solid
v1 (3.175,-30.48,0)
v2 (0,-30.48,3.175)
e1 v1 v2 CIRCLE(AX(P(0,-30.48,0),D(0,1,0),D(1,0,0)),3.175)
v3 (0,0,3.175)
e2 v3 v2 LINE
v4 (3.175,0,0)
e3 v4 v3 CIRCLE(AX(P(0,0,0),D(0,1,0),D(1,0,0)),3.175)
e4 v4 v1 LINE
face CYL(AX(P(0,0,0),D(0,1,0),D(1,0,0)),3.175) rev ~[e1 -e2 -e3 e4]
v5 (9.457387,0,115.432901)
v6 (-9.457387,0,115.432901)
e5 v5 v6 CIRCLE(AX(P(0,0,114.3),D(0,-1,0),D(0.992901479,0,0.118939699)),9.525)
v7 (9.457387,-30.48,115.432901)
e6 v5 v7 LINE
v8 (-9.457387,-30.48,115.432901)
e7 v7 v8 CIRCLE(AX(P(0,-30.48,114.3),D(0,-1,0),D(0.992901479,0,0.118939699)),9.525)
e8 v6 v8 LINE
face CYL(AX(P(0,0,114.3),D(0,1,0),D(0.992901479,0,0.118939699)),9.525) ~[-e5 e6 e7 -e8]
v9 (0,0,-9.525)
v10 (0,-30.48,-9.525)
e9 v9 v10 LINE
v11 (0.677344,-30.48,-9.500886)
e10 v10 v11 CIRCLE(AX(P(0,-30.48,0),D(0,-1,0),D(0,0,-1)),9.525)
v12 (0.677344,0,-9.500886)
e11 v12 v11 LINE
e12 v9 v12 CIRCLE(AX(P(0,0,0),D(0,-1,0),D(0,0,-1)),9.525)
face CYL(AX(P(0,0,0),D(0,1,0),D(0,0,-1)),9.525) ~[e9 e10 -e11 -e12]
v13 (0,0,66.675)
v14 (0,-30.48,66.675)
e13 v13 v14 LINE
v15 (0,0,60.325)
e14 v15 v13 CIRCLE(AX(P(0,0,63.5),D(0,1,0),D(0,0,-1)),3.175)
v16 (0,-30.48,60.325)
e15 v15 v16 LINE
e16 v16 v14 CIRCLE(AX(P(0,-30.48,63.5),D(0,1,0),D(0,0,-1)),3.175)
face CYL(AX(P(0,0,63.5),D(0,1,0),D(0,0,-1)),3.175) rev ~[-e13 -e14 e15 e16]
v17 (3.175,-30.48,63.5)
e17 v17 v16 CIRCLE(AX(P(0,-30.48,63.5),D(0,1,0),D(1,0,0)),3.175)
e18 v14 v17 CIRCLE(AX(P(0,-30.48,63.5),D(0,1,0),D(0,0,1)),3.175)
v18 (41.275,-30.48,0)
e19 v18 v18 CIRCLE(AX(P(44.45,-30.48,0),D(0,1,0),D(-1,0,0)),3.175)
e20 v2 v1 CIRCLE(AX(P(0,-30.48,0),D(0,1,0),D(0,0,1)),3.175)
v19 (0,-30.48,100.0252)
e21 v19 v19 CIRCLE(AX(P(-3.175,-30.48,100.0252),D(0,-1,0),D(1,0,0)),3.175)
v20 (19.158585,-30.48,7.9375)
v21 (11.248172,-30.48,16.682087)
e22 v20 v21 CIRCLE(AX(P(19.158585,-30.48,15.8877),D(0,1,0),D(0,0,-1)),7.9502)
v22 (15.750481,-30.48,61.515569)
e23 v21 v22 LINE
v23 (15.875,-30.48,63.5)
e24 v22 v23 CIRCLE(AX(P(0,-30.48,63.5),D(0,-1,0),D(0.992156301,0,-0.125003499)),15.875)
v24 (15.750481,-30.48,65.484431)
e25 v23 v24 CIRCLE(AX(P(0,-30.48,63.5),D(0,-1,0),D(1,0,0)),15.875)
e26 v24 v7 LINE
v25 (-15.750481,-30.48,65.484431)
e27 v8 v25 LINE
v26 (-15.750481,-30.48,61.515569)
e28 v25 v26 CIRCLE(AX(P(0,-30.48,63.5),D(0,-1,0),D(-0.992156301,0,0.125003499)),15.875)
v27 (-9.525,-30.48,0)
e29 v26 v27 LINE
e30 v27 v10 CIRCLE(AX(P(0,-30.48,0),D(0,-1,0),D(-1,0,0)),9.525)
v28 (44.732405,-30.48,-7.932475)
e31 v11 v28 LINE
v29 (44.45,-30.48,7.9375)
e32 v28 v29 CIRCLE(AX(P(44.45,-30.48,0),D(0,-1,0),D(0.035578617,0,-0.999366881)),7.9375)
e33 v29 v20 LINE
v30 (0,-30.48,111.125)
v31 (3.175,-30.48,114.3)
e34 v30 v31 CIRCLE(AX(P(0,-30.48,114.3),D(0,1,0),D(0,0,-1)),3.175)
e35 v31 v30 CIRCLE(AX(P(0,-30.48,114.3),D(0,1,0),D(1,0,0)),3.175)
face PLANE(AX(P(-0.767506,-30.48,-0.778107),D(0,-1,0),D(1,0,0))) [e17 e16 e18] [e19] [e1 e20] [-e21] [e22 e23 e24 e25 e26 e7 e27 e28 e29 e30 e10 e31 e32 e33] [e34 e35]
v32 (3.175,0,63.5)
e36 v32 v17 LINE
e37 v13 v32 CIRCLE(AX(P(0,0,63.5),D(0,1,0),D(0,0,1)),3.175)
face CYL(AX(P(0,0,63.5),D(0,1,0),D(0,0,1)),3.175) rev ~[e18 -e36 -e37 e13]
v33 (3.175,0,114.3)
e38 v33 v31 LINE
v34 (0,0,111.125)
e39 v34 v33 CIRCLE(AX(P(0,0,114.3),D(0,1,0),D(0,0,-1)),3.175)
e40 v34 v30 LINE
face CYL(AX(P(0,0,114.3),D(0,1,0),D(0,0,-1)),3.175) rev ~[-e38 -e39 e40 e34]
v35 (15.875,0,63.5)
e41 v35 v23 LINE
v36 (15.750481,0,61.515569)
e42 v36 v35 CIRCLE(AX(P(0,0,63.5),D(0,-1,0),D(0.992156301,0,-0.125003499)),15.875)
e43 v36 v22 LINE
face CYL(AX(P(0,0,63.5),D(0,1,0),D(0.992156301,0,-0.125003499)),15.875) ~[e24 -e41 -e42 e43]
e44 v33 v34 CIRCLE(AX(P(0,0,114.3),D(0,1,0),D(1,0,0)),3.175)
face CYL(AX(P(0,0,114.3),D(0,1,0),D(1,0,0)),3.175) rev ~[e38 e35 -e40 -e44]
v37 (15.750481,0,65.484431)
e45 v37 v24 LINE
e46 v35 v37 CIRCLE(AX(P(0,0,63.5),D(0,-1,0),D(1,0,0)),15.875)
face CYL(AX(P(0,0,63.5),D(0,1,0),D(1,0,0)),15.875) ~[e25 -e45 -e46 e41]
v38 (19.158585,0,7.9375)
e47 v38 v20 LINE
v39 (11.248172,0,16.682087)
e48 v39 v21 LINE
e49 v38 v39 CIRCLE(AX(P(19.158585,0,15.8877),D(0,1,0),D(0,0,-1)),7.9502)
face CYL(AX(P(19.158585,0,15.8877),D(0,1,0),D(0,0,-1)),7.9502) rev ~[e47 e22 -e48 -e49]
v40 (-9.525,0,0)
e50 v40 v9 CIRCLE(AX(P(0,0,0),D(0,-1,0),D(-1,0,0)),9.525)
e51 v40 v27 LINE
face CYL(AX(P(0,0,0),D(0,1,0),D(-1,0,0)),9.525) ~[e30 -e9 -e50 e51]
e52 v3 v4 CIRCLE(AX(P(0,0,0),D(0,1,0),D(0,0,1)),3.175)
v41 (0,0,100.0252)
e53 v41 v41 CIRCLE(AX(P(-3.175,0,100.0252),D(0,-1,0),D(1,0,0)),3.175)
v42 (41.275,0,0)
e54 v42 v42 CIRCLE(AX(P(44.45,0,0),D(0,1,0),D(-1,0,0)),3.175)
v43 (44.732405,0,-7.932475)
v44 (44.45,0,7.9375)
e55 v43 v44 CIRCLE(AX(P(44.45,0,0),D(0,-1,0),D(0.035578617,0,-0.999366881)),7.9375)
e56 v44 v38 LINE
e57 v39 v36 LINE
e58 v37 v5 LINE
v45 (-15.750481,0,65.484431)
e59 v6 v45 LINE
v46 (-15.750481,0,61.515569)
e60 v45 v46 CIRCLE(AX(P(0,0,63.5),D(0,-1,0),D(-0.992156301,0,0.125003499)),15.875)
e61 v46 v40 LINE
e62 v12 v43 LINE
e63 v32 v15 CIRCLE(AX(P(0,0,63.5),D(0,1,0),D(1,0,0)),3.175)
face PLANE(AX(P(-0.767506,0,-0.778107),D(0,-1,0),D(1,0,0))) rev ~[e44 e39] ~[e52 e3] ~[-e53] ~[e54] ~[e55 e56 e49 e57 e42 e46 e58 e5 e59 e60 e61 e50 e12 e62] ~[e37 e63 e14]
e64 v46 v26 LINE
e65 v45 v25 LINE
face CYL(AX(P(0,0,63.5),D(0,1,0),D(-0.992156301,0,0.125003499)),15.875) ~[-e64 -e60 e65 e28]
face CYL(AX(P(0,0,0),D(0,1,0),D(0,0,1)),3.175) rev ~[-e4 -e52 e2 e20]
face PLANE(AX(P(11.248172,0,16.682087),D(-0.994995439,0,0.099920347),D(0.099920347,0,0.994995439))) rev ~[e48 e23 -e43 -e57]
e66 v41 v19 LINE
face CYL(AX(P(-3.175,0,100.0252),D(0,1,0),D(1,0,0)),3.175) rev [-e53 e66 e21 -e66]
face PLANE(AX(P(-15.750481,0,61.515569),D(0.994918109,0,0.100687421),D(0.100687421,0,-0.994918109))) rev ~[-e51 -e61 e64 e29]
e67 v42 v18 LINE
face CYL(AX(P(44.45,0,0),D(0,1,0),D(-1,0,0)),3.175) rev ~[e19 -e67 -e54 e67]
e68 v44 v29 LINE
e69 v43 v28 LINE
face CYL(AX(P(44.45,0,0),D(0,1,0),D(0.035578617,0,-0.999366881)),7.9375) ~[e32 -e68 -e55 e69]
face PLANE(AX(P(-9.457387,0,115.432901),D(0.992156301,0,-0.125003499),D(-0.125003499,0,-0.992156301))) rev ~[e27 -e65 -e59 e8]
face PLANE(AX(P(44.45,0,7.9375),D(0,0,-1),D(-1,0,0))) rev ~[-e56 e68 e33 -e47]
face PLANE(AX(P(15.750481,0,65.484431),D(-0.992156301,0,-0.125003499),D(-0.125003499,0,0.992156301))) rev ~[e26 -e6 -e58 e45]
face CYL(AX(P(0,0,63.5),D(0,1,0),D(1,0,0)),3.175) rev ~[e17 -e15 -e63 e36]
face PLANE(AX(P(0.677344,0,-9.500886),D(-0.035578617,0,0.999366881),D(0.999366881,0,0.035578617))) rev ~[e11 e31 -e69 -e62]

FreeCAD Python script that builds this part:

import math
import FreeCAD as App
import Part
import Sketcher
Q = App.Units.Quantity

doc = App.newDocument("Part")
body = doc.addObject("PartDesign::Body", "Body")

# Sketch on XZ plane
sketch1 = doc.addObject("Sketcher::SketchObject", "Sketch")
body.addObject(sketch1)
sketch1.AttachmentSupport = (doc.XZ_Plane, [""])
sketch1.MapMode = "FlatFace"
sketch1.addGeometry(Part.ArcOfCircle(Part.Circle(App.Vector(0, 63.5, 0), App.Vector(0, 0, 1), 15.875), math.radians(172.819042), math.radians(187.180958)), False)
sketch1.addGeometry(Part.LineSegment(App.Vector(-15.750481, 61.515569, 0), App.Vector(-9.525, 0, 0)), False)
sketch1.addGeometry(Part.ArcOfCircle(Part.Circle(App.Vector(0, 0, 0), App.Vector(0, 0, 1), 9.525), math.radians(180), math.radians(270)), False)
sketch1.addGeometry(Part.ArcOfCircle(Part.Circle(App.Vector(0, 0, 0), App.Vector(0, 0, 1), 9.525), math.radians(-90), math.radians(-85.92213)), False)
sketch1.addGeometry(Part.LineSegment(App.Vector(0.677344, -9.500886, 0), App.Vector(44.732405, -7.932475, 0)), False)
sketch1.addGeometry(Part.ArcOfCircle(Part.Circle(App.Vector(44.45, 0, 0), App.Vector(0, 0, 1), 7.9375), math.radians(-87.961065), math.radians(90)), False)
sketch1.addGeometry(Part.LineSegment(App.Vector(44.45, 7.9375, 0), App.Vector(19.158585, 7.9375, 0)), False)
sketch1.addGeometry(Part.ArcOfCircle(Part.Circle(App.Vector(19.158585, 15.8877, 0), App.Vector(0, 0, 1), 7.9502), math.radians(174.265416), math.radians(270)), False)
sketch1.addGeometry(Part.LineSegment(App.Vector(11.248172, 16.682087, 0), App.Vector(15.750481, 61.515569, 0)), False)
sketch1.addGeometry(Part.ArcOfCircle(Part.Circle(App.Vector(0, 63.5, 0), App.Vector(0, 0, 1), 15.875), math.radians(-7.180958), math.radians(0)), False)
sketch1.addGeometry(Part.ArcOfCircle(Part.Circle(App.Vector(0, 63.5, 0), App.Vector(0, 0, 1), 15.875), math.radians(0), math.radians(7.180958)), False)
sketch1.addGeometry(Part.LineSegment(App.Vector(15.750481, 65.484431, 0), App.Vector(9.457387, 115.432901, 0)), False)
sketch1.addGeometry(Part.ArcOfCircle(Part.Circle(App.Vector(0, 114.3, 0), App.Vector(0, 0, 1), 9.525), math.radians(6.830914), math.radians(173.169086)), False)
sketch1.addGeometry(Part.LineSegment(App.Vector(-9.457387, 115.432901, 0), App.Vector(-15.750481, 65.484431, 0)), False)
sketch1.addGeometry(Part.ArcOfCircle(Part.Circle(App.Vector(0, 0, 0), App.Vector(0, 0, 1), 3.175), math.radians(90), math.radians(360)), False)
sketch1.addGeometry(Part.ArcOfCircle(Part.Circle(App.Vector(0, 0, 0), App.Vector(0, 0, 1), 3.175), math.radians(0), math.radians(90)), False)
sketch1.addGeometry(Part.Circle(App.Vector(44.45, 0, 0), App.Vector(0, 0, 1), 3.175), False)
sketch1.addGeometry(Part.ArcOfCircle(Part.Circle(App.Vector(0, 63.5, 0), App.Vector(0, 0, 1), 3.175), math.radians(90), math.radians(270)), False)
sketch1.addGeometry(Part.ArcOfCircle(Part.Circle(App.Vector(0, 63.5, 0), App.Vector(0, 0, 1), 3.175), math.radians(0), math.radians(90)), False)
sketch1.addGeometry(Part.ArcOfCircle(Part.Circle(App.Vector(0, 63.5, 0), App.Vector(0, 0, 1), 3.175), math.radians(-90), math.radians(0)), False)
sketch1.addGeometry(Part.Circle(App.Vector(-3.175, 100.0252, 0), App.Vector(0, 0, 1), 3.175), False)
sketch1.addGeometry(Part.ArcOfCircle(Part.Circle(App.Vector(0, 114.3, 0), App.Vector(0, 0, 1), 3.175), math.radians(0), math.radians(270)), False)
sketch1.addGeometry(Part.ArcOfCircle(Part.Circle(App.Vector(0, 114.3, 0), App.Vector(0, 0, 1), 3.175), math.radians(-90), math.radians(0)), False)
sketch1.addConstraint(Sketcher.Constraint("Coincident", 0, 2, 1, 1))
sketch1.addConstraint(Sketcher.Constraint("Coincident", 1, 2, 2, 1))
sketch1.addConstraint(Sketcher.Constraint("Tangent", 2, 2, 3, 1))
sketch1.addConstraint(Sketcher.Constraint("Coincident", 3, 2, 4, 1))
sketch1.addConstraint(Sketcher.Constraint("Tangent", 4, 2, 5, 1))
sketch1.addConstraint(Sketcher.Constraint("Tangent", 5, 2, 6, 1))
sketch1.addConstraint(Sketcher.Constraint("Tangent", 6, 2, 7, 2))
sketch1.addConstraint(Sketcher.Constraint("Tangent", 7, 1, 8, 1))
sketch1.addConstraint(Sketcher.Constraint("Coincident", 8, 2, 9, 1))
sketch1.addConstraint(Sketcher.Constraint("Tangent", 9, 2, 10, 1))
sketch1.addConstraint(Sketcher.Constraint("Tangent", 10, 2, 11, 1))
sketch1.addConstraint(Sketcher.Constraint("Coincident", 11, 2, 12, 1))
sketch1.addConstraint(Sketcher.Constraint("Coincident", 12, 2, 13, 1))
sketch1.addConstraint(Sketcher.Constraint("Tangent", 13, 2, 0, 1))
sketch1.addConstraint(Sketcher.Constraint("Tangent", 14, 1, 15, 2))
sketch1.addConstraint(Sketcher.Constraint("Coincident", 15, 1, 14, 2))
sketch1.addConstraint(Sketcher.Constraint("Tangent", 17, 1, 18, 2))
sketch1.addConstraint(Sketcher.Constraint("Tangent", 18, 1, 19, 2))
sketch1.addConstraint(Sketcher.Constraint("Tangent", 19, 1, 17, 2))
sketch1.addConstraint(Sketcher.Constraint("Tangent", 21, 1, 22, 2))
sketch1.addConstraint(Sketcher.Constraint("Coincident", 22, 1, 21, 2))
sketch1.addConstraint(Sketcher.Constraint("Horizontal", 6))
sketch1.addConstraint(Sketcher.Constraint("Coincident", 2, 3, -1, 1))
sketch1.addConstraint(Sketcher.Constraint("Coincident", 14, 3, -1, 1))
sketch1.addConstraint(Sketcher.Constraint("Coincident", 9, 3, 0, 3))
sketch1.addConstraint(Sketcher.Constraint("Coincident", 16, 3, 5, 3))
sketch1.addConstraint(Sketcher.Constraint("Coincident", 17, 3, 0, 3))
sketch1.addConstraint(Sketcher.Constraint("Coincident", 21, 3, 12, 3))
sketch1.addConstraint(Sketcher.Constraint("Equal", 2, 3))
sketch1.addConstraint(Sketcher.Constraint("Equal", 0, 9))
sketch1.addConstraint(Sketcher.Constraint("Equal", 9, 10))
sketch1.addConstraint(Sketcher.Constraint("Equal", 3, 12))
sketch1.addConstraint(Sketcher.Constraint("Equal", 15, 16))
sketch1.addConstraint(Sketcher.Constraint("Equal", 16, 17))
sketch1.addConstraint(Sketcher.Constraint("Equal", 19, 20))
sketch1.addConstraint(Sketcher.Constraint("Equal", 20, 21))
sketch1.addConstraint(Sketcher.Constraint("Symmetric", 0, 2, 8, 2, -2))
sketch1.addConstraint(Sketcher.Constraint("Symmetric", 11, 2, 12, 2, -2))
sketch1.addConstraint(Sketcher.Constraint("PointOnObject", 5, 3, -1))
sketch1.addConstraint(Sketcher.Constraint("PointOnObject", 1, 2, -1))
sketch1.addConstraint(Sketcher.Constraint("PointOnObject", 2, 2, -2))
sketch1.addConstraint(Sketcher.Constraint("PointOnObject", 14, 1, -2))
sketch1.addConstraint(Sketcher.Constraint("PointOnObject", 15, 1, -1))
sketch1.addConstraint(Sketcher.Constraint("PointOnObject", 17, 1, -2))
sketch1.addConstraint(Sketcher.Constraint("PointOnObject", 19, 1, -2))
sketch1.addConstraint(Sketcher.Constraint("PointOnObject", 22, 1, -2))
sketch1.addConstraint(Sketcher.Constraint("Horizontal", 19, 3, 9, 2))
sketch1.addConstraint(Sketcher.Constraint("Horizontal", 9, 2, 18, 1))
sketch1.addConstraint(Sketcher.Constraint("Horizontal", 22, 3, 21, 1))
sketch1.addConstraint(Sketcher.Constraint("Vertical", 8, 2, 10, 2))
sketch1.addConstraint(Sketcher.Constraint("Diameter", 16, Q("0.25 in")))
sketch1.addConstraint(Sketcher.Constraint("Radius", 0, Q("0.625 in")))
sketch1.addConstraint(Sketcher.Constraint("Radius", 2, Q("0.375 in")))
sketch1.addConstraint(Sketcher.Constraint("Radius", 5, Q("0.3125 in")))
sketch1.addConstraint(Sketcher.Constraint("Radius", 7, Q("0.313 in")))
sketch1.addConstraint(Sketcher.Constraint("DistanceY", 10, 3, 12, 3, Q("2 in")))
sketch1.addConstraint(Sketcher.Constraint("DistanceY", -1, 1, 0, 3, Q("2.5 in")))
sketch1.addConstraint(Sketcher.Constraint("DistanceX", -1, 1, 5, 3, Q("1.75 in")))
sketch1.addConstraint(Sketcher.Constraint("DistanceX", 20, 3, -1, 1, Q("0.125 in")))
sketch1.addConstraint(Sketcher.Constraint("DistanceY", -1, 1, 20, 3, Q("3.938 in")))
sketch1.addConstraint(Sketcher.Constraint("DistanceY", -1, 1, 11, 2, Q("115.432901 mm")))
sketch1.addConstraint(Sketcher.Constraint("Distance", 4, Q("44.082972 mm")))
sketch1.addConstraint(Sketcher.Constraint("DistanceX", 6, 2, 6, 1, Q("25.291415 mm")))
pad1 = doc.addObject("PartDesign::Pad", "Pad")
body.addObject(pad1)
pad1.Profile = sketch1
pad1.Length = Q("1.2 in")

doc.recompute()
